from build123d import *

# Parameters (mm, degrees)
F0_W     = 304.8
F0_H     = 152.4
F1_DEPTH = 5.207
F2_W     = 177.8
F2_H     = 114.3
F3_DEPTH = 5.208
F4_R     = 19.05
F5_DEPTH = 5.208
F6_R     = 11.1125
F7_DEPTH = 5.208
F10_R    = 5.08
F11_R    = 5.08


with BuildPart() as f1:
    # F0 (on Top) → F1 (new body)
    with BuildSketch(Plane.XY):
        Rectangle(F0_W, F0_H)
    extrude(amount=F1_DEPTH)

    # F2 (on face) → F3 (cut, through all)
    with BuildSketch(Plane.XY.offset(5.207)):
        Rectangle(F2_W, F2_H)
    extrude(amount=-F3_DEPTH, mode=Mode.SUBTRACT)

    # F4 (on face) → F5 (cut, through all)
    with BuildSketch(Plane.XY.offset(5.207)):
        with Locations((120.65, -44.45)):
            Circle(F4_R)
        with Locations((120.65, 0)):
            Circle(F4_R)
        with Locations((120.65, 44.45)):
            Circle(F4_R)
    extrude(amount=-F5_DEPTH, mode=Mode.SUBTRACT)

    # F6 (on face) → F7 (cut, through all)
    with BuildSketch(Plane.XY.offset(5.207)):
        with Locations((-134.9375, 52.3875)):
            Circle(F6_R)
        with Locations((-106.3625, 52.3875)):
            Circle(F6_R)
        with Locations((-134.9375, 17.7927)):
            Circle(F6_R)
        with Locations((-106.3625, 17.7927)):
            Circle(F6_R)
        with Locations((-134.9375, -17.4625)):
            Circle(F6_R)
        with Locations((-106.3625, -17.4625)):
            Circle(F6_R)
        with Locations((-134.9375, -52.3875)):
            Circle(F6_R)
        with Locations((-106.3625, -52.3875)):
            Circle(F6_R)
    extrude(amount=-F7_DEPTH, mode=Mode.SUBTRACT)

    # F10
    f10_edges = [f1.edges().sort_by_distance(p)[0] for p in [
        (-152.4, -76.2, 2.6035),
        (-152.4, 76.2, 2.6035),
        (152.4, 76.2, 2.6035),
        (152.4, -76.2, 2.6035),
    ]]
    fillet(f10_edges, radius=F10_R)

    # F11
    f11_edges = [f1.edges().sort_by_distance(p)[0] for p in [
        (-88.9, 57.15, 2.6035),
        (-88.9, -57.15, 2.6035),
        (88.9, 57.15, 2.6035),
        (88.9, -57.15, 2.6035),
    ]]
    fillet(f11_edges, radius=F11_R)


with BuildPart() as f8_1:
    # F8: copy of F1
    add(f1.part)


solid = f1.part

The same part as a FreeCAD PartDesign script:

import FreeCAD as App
import Part
import Sketcher
Q = App.Units.Quantity


def edges_at(feature, points):
    """Names of the edges that pass closest to the given points."""
    edges = feature.Shape.Edges
    near = lambda p: min(range(len(edges)), key=lambda i: edges[i].distToShape(Part.Vertex(*p))[0])
    return sorted({f"Edge{near(p) + 1}" for p in points})


def add_polygon(sketch, points):
    """Adds a closed chain of lines whose ends are joined by coincident constraints."""
    first, n = sketch.GeometryCount, len(points)
    for a, b in zip(points, points[1:] + points[:1]):
        sketch.addGeometry(Part.LineSegment(App.Vector(*a, 0), App.Vector(*b, 0)), False)
    for i in range(n):
        sketch.addConstraint(Sketcher.Constraint("Coincident", first + i, 2, first + (i + 1) % n, 1))

doc = App.newDocument("Part")
body = doc.addObject("PartDesign::Body", "Body")

# Sketch on XY plane
sketch1 = doc.addObject("Sketcher::SketchObject", "Sketch")
body.addObject(sketch1)
sketch1.AttachmentSupport = (doc.XY_Plane, [""])
sketch1.MapMode = "FlatFace"
add_polygon(sketch1, [(-152, 76), (-152, -76), (152, -76), (152, 76)])  # lines 0-3
sketch1.addConstraint(Sketcher.Constraint("Vertical", 0))
sketch1.addConstraint(Sketcher.Constraint("Horizontal", 1))
sketch1.addConstraint(Sketcher.Constraint("Vertical", 2))
sketch1.addConstraint(Sketcher.Constraint("Horizontal", 3))
sketch1.addConstraint(Sketcher.Constraint("Symmetric", 0, 2, 2, 2, -1, 1))
sketch1.addConstraint(Sketcher.Constraint("DistanceX", 1, 1, 1, 2, Q("12 in")))
sketch1.addConstraint(Sketcher.Constraint("DistanceY", 0, 2, 0, 1, Q("6 in")))
pad1 = doc.addObject("PartDesign::Pad", "Pad")
body.addObject(pad1)
pad1.Profile = sketch1
pad1.Length = Q("0.205 in")

# Sketch on XY plane
sketch2 = doc.addObject("Sketcher::SketchObject", "Sketch001")
body.addObject(sketch2)
sketch2.AttachmentSupport = (doc.XY_Plane, [""])
sketch2.MapMode = "FlatFace"
sketch2.AttachmentOffset = App.Placement(App.Vector(0, 0, 0.205 * 25.4), App.Rotation())
add_polygon(sketch2, [(-89, 57), (-89, -57), (89, -57), (89, 57)])  # lines 0-3
sketch2.addConstraint(Sketcher.Constraint("Vertical", 0))
sketch2.addConstraint(Sketcher.Constraint("Horizontal", 1))
sketch2.addConstraint(Sketcher.Constraint("Vertical", 2))
sketch2.addConstraint(Sketcher.Constraint("Horizontal", 3))
sketch2.addConstraint(Sketcher.Constraint("Symmetric", 0, 2, 2, 2, -1, 1))
sketch2.addConstraint(Sketcher.Constraint("DistanceX", 1, 1, 1, 2, Q("7 in")))
sketch2.addConstraint(Sketcher.Constraint("DistanceY", 0, 2, 0, 1, Q("4.5 in")))
pocket1 = doc.addObject("PartDesign::Pocket", "Pocket")
body.addObject(pocket1)
pocket1.Profile = sketch2
pocket1.Type = "ThroughAll"

# Sketch on XY plane
sketch3 = doc.addObject("Sketcher::SketchObject", "Sketch002")
body.addObject(sketch3)
sketch3.AttachmentSupport = (doc.XY_Plane, [""])
sketch3.MapMode = "FlatFace"
sketch3.AttachmentOffset = App.Placement(App.Vector(0, 0, 0.205 * 25.4), App.Rotation())
sketch3.addGeometry(Part.Circle(App.Vector(121, -44, 0), App.Vector(0, 0, 1), 19), False)
sketch3.addGeometry(Part.Circle(App.Vector(121, 0, 0), App.Vector(0, 0, 1), 19), False)
sketch3.addGeometry(Part.Circle(App.Vector(121, 44, 0), App.Vector(0, 0, 1), 19), False)
sketch3.addConstraint(Sketcher.Constraint("Equal", 0, 1))
sketch3.addConstraint(Sketcher.Constraint("Equal", 1, 2))
sketch3.addConstraint(Sketcher.Constraint("Symmetric", 0, 3, 2, 3, -1))
sketch3.addConstraint(Sketcher.Constraint("PointOnObject", 1, 3, -1))
sketch3.addConstraint(Sketcher.Constraint("Vertical", 0, 3, 1, 3))
sketch3.addConstraint(Sketcher.Constraint("Diameter", 0, Q("1.5 in")))
sketch3.addConstraint(Sketcher.Constraint("DistanceY", 0, 3, 2, 3, Q("3.5 in")))
sketch3.addConstraint(Sketcher.Constraint("DistanceX", -1, 1, 0, 3, Q("4.75 in")))
pocket2 = doc.addObject("PartDesign::Pocket", "Pocket001")
body.addObject(pocket2)
pocket2.Profile = sketch3
pocket2.Type = "ThroughAll"

# Sketch on XY plane
sketch4 = doc.addObject("Sketcher::SketchObject", "Sketch003")
body.addObject(sketch4)
sketch4.AttachmentSupport = (doc.XY_Plane, [""])
sketch4.MapMode = "FlatFace"
sketch4.AttachmentOffset = App.Placement(App.Vector(0, 0, 0.205 * 25.4), App.Rotation())
sketch4.addGeometry(Part.Circle(App.Vector(-135, 52, 0), App.Vector(0, 0, 1), 11), False)
sketch4.addGeometry(Part.Circle(App.Vector(-106, 52, 0), App.Vector(0, 0, 1), 11), False)
sketch4.addGeometry(Part.Circle(App.Vector(-135, 18, 0), App.Vector(0, 0, 1), 11), False)
sketch4.addGeometry(Part.Circle(App.Vector(-106, 18, 0), App.Vector(0, 0, 1), 11), False)
sketch4.addGeometry(Part.Circle(App.Vector(-135, -17, 0), App.Vector(0, 0, 1), 11), False)
sketch4.addGeometry(Part.Circle(App.Vector(-106, -17, 0), App.Vector(0, 0, 1), 11), False)
sketch4.addGeometry(Part.Circle(App.Vector(-135, -52, 0), App.Vector(0, 0, 1), 11), False)
sketch4.addGeometry(Part.Circle(App.Vector(-106, -52, 0), App.Vector(0, 0, 1), 11), False)
sketch4.addConstraint(Sketcher.Constraint("Equal", 0, 1))
sketch4.addConstraint(Sketcher.Constraint("Equal", 1, 2))
sketch4.addConstraint(Sketcher.Constraint("Equal", 2, 3))
sketch4.addConstraint(Sketcher.Constraint("Equal", 3, 4))
sketch4.addConstraint(Sketcher.Constraint("Equal", 4, 5))
sketch4.addConstraint(Sketcher.Constraint("Equal", 5, 6))
sketch4.addConstraint(Sketcher.Constraint("Equal", 6, 7))
sketch4.addConstraint(Sketcher.Constraint("Symmetric", 0, 3, 6, 3, -1))
sketch4.addConstraint(Sketcher.Constraint("Symmetric", 1, 3, 7, 3, -1))
sketch4.addConstraint(Sketcher.Constraint("Horizontal", 0, 3, 1, 3))
sketch4.addConstraint(Sketcher.Constraint("Horizontal", 2, 3, 3, 3))
sketch4.addConstraint(Sketcher.Constraint("Horizontal", 4, 3, 5, 3))
sketch4.addConstraint(Sketcher.Constraint("Vertical", 0, 3, 2, 3))
sketch4.addConstraint(Sketcher.Constraint("Vertical", 1, 3, 3, 3))
sketch4.addConstraint(Sketcher.Constraint("Vertical", 2, 3, 4, 3))
sketch4.addConstraint(Sketcher.Constraint("Vertical", 3, 3, 5, 3))
sketch4.addConstraint(Sketcher.Constraint("Diameter", 0, Q("0.875 in")))
sketch4.addConstraint(Sketcher.Constraint("DistanceY", 4, 3, 0, 3, Q("2.75 in")))
sketch4.addConstraint(Sketcher.Constraint("DistanceX", 0, 3, -1, 1, Q("5.3125 in")))
sketch4.addConstraint(Sketcher.Constraint("DistanceY", -1, 1, 0, 3, Q("2.0625 in")))
sketch4.addConstraint(Sketcher.Constraint("DistanceX", 1, 3, -1, 1, Q("4.1875 in")))
sketch4.addConstraint(Sketcher.Constraint("DistanceY", 2, 3, 0, 3, Q("1.362 in")))
pocket3 = doc.addObject("PartDesign::Pocket", "Pocket002")
body.addObject(pocket3)
pocket3.Profile = sketch4
pocket3.Type = "ThroughAll"
doc.recompute()

fillet = doc.addObject("PartDesign::Fillet", "Fillet")
body.addObject(fillet)
fillet.Base = (pocket3, edges_at(pocket3, [
    (-152.4, -76.2, 2.603),
    (-152.4, 76.2, 2.603),
    (152.4, 76.2, 2.603),
    (152.4, -76.2, 2.603),
]))
fillet.Radius = Q("0.2 in")
doc.recompute()

fillet2 = doc.addObject("PartDesign::Fillet", "Fillet001")
body.addObject(fillet2)
fillet2.Base = (fillet, edges_at(fillet, [
    (-88.9, 57.15, 2.603),
    (-88.9, -57.15, 2.603),
    (88.9, 57.15, 2.603),
    (88.9, -57.15, 2.603),
]))
fillet2.Radius = Q("0.2 in")
body2 = doc.addObject("PartDesign::Body", "Body001")
doc.recompute()

body2.BaseFeature = body
doc.recompute()
body.Visibility = False

doc.recompute()
